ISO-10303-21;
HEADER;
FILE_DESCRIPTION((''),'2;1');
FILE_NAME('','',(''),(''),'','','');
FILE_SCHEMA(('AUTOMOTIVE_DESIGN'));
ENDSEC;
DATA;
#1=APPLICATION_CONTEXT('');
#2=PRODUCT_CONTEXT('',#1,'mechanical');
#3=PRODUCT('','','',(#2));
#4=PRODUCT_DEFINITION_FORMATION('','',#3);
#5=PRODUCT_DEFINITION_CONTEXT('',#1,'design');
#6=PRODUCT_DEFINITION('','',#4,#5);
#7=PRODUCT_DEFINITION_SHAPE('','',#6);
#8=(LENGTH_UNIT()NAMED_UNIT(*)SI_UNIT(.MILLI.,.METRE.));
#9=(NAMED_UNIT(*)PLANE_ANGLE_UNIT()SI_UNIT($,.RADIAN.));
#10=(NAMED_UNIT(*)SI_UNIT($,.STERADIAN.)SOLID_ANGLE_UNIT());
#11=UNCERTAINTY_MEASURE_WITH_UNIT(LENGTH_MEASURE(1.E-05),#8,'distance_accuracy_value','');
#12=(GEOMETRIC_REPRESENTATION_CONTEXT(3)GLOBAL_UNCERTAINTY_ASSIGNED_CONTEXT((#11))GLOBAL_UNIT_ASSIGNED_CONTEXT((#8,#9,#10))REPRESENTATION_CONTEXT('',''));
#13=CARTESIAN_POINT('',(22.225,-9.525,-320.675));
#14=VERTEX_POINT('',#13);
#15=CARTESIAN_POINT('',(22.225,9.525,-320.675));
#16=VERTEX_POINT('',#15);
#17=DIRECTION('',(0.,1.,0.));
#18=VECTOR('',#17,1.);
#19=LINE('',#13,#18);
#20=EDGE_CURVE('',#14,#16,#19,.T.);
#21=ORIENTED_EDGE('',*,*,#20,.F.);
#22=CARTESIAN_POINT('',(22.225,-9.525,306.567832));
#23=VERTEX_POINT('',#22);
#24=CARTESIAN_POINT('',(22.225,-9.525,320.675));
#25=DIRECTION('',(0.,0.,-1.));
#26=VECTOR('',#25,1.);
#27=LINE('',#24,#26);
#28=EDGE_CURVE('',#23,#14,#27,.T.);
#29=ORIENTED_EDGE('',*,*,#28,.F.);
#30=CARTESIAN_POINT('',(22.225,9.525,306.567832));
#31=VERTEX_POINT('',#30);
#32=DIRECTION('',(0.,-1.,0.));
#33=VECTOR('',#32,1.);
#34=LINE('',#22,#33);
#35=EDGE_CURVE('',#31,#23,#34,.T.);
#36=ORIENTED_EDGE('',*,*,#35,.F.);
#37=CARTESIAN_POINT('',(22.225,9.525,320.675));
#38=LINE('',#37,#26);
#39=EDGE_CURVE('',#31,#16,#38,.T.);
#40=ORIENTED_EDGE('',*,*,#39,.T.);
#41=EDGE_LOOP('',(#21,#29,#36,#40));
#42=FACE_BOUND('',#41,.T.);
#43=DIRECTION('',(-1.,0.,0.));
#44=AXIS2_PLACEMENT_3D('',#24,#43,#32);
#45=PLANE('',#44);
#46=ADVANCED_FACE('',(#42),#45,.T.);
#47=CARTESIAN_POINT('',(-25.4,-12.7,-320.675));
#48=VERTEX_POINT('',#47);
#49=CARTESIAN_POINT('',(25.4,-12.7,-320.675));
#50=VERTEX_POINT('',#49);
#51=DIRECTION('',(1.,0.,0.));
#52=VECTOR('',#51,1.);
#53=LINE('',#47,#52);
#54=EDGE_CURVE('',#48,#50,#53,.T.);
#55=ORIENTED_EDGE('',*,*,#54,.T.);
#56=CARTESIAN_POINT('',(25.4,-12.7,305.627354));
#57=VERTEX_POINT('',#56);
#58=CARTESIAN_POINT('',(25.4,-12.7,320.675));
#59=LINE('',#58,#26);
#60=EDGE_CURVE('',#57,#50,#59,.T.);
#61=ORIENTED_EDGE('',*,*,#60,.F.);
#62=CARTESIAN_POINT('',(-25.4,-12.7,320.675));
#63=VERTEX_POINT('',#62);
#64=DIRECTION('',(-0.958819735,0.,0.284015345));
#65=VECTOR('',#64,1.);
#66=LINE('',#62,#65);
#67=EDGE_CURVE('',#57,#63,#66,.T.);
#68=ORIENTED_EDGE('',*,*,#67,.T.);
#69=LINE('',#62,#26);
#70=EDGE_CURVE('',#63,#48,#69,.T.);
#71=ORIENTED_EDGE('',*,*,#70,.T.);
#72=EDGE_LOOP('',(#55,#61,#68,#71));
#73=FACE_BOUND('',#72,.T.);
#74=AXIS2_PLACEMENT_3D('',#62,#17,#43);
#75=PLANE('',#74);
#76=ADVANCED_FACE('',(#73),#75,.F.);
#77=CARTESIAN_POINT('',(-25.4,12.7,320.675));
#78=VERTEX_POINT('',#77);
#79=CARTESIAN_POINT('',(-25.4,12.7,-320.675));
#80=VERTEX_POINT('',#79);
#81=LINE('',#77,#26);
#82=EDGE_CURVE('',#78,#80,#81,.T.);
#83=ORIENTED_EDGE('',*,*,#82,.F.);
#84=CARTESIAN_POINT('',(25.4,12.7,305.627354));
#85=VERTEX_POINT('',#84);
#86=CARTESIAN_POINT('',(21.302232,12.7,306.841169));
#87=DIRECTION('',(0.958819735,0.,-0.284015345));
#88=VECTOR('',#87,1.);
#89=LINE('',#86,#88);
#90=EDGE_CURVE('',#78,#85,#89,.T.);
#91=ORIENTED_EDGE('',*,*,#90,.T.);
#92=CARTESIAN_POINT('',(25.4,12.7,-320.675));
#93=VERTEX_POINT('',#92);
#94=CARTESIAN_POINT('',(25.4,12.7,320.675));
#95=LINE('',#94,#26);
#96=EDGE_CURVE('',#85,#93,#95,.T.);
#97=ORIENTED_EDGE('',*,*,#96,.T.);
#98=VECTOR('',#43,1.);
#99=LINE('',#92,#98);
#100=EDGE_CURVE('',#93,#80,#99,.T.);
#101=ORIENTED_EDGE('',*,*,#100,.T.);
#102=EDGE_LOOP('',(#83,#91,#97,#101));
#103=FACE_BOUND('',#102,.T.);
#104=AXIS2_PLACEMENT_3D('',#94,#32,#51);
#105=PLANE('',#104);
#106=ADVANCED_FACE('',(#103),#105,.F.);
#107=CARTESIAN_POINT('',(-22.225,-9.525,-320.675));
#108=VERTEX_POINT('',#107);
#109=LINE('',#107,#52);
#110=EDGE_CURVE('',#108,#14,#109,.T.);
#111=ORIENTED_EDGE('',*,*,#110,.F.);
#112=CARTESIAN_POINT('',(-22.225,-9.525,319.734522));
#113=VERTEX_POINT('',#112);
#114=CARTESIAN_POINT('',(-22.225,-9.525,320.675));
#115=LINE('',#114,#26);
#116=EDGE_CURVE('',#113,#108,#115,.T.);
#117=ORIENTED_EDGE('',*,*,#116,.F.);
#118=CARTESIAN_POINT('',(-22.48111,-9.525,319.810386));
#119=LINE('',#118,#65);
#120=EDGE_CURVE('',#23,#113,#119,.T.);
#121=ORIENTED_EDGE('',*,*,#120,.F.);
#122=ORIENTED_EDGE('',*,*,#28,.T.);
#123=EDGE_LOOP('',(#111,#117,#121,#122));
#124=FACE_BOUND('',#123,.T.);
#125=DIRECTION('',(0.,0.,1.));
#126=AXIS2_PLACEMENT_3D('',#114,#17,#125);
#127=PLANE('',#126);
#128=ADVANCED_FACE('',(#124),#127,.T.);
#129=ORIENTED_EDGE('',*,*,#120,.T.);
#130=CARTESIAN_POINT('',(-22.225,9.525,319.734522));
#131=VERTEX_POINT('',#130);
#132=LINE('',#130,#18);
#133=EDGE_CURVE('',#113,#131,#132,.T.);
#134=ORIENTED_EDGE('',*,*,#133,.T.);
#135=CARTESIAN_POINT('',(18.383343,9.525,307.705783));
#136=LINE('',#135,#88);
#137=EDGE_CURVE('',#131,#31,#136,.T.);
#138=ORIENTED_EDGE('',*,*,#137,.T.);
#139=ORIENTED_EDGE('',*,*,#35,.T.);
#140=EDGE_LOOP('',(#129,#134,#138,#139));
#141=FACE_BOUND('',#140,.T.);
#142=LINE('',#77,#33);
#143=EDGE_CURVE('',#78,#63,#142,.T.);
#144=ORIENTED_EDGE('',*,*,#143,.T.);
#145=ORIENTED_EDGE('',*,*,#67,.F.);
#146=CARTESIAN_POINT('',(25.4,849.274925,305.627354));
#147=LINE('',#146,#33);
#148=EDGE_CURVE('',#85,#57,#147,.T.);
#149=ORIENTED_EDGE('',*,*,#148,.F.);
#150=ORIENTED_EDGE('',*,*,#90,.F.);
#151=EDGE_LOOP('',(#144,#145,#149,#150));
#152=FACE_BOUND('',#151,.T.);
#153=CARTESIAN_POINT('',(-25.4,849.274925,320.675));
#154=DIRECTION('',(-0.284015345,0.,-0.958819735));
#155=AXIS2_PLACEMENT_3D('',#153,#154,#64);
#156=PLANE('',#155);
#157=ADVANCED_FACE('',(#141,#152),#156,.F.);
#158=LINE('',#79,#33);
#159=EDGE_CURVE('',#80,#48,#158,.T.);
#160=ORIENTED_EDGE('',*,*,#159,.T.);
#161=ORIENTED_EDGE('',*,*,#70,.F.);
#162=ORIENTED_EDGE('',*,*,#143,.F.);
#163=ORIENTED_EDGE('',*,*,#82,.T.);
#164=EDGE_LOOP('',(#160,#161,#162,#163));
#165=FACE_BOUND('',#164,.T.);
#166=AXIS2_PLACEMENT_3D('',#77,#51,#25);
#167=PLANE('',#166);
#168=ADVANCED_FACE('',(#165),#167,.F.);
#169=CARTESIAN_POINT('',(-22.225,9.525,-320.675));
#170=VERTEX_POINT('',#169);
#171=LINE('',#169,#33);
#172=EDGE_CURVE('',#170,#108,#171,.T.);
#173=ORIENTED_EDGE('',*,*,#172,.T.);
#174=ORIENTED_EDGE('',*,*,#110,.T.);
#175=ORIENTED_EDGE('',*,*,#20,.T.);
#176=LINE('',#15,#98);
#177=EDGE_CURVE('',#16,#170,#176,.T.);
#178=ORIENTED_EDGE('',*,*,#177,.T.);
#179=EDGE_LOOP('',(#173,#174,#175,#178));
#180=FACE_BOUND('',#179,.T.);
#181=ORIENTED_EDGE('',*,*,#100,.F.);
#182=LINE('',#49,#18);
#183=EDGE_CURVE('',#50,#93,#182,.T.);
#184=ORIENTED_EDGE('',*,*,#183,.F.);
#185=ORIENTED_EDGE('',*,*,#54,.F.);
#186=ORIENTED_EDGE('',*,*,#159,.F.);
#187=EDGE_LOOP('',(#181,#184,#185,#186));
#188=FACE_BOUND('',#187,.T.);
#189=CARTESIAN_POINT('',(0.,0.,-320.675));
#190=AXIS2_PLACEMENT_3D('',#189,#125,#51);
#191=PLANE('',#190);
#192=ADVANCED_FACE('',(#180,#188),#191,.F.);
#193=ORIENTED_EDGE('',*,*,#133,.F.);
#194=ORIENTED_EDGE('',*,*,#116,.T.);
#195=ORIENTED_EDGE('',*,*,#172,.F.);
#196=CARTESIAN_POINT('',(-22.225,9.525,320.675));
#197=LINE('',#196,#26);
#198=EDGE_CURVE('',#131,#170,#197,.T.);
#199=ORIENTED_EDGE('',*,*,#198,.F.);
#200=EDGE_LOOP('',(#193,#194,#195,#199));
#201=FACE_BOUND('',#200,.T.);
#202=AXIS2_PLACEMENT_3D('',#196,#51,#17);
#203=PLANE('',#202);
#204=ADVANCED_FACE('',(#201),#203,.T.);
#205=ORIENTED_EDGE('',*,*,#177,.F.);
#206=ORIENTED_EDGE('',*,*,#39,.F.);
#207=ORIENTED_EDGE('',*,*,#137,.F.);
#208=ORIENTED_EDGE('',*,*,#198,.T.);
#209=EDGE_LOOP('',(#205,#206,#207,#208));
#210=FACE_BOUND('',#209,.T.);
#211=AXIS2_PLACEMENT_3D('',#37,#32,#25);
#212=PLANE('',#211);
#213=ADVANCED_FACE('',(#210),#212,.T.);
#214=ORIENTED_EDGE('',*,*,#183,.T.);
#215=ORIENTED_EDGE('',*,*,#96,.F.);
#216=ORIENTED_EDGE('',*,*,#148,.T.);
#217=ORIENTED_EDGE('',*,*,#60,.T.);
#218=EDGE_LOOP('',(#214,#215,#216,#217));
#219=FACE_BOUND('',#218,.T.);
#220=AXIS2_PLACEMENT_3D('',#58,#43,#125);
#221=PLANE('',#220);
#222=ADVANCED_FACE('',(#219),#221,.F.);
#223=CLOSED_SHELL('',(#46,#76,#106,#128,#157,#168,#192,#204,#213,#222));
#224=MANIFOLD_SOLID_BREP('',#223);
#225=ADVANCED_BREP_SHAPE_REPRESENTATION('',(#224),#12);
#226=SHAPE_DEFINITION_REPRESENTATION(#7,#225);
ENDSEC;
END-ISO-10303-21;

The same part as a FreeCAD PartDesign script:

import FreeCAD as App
import Part
import Sketcher
from FreeCAD import Vector
Q = App.Units.Quantity

doc = App.newDocument("Part")
params = doc.addObject("Spreadsheet::Sheet", "Params")
for row, (alias, value) in enumerate([
    ("sketch1_width", "2 in"),
    ("sketch1_height", "1 in"),
    ("sketch1_width2", "1.75 in"),
    ("sketch1_height2", "0.75 in"),
    ("pad1_length", "12.625 in"),
    ("pad1_length2", "12.625 in"),
], start=1):
    params.set(f"A{row}", alias)
    params.set(f"B{row}", "=" + value)
    params.setAlias(f"B{row}", alias)

body = doc.addObject("PartDesign::Body", "Body")

# Sketch on XY plane
sketch1 = doc.addObject("Sketcher::SketchObject", "Sketch")
body.addObject(sketch1)
sketch1.AttachmentSupport = (doc.XY_Plane, [""])
sketch1.MapMode = "FlatFace"
sketch1.addGeometry([
    Part.LineSegment(Vector(-25, 13, 0), Vector(-25, -13, 0)),  # 0
    Part.LineSegment(Vector(-25, -13, 0), Vector(25, -13, 0)),  # 1
    Part.LineSegment(Vector(25, -13, 0), Vector(25, 13, 0)),  # 2
    Part.LineSegment(Vector(25, 13, 0), Vector(-25, 13, 0)),  # 3
    Part.LineSegment(Vector(22, -10, 0), Vector(-22, -10, 0)),  # 4
    Part.LineSegment(Vector(-22, -10, 0), Vector(-22, 10, 0)),  # 5
    Part.LineSegment(Vector(-22, 10, 0), Vector(22, 10, 0)),  # 6
    Part.LineSegment(Vector(22, 10, 0), Vector(22, -10, 0)),  # 7
], False)
sketch1.addConstraint([
    Sketcher.Constraint("Coincident", 0, 2, 1, 1),
    Sketcher.Constraint("Coincident", 1, 2, 2, 1),
    Sketcher.Constraint("Coincident", 2, 2, 3, 1),
    Sketcher.Constraint("Coincident", 3, 2, 0, 1),
    Sketcher.Constraint("Coincident", 4, 2, 5, 1),
    Sketcher.Constraint("Coincident", 5, 2, 6, 1),
    Sketcher.Constraint("Coincident", 6, 2, 7, 1),
    Sketcher.Constraint("Coincident", 7, 2, 4, 1),
    Sketcher.Constraint("Vertical", 0),
    Sketcher.Constraint("Horizontal", 1),
    Sketcher.Constraint("Vertical", 2),
    Sketcher.Constraint("Horizontal", 3),
    Sketcher.Constraint("Horizontal", 4),
    Sketcher.Constraint("Vertical", 5),
    Sketcher.Constraint("Horizontal", 6),
    Sketcher.Constraint("Vertical", 7),
    Sketcher.Constraint("Symmetric", 0, 2, 2, 2, -1, 1),
    Sketcher.Constraint("Symmetric", 4, 2, 6, 2, -1, 1),
    Sketcher.Constraint("DistanceX", 1, 1, 1, 2, Q("2 in")),
    Sketcher.Constraint("DistanceY", 0, 2, 0, 1, Q("1 in")),
    Sketcher.Constraint("DistanceX", 4, 2, 4, 1, Q("1.75 in")),
    Sketcher.Constraint("DistanceY", 5, 1, 5, 2, Q("0.75 in")),
])
sketch1.setExpression("Constraints[18]", "Params.sketch1_width")
sketch1.setExpression("Constraints[19]", "Params.sketch1_height")
sketch1.setExpression("Constraints[20]", "Params.sketch1_width2")
sketch1.setExpression("Constraints[21]", "Params.sketch1_height2")
pad1 = doc.addObject("PartDesign::Pad", "Pad")
body.addObject(pad1)
pad1.Profile = sketch1
pad1.Type = "TwoLengths"
pad1.setExpression("Length", "Params.pad1_length")
pad1.setExpression("Length2", "Params.pad1_length2")

# Sketch on XZ plane
sketch2 = doc.addObject("Sketcher::SketchObject", "Sketch001")
body.addObject(sketch2)
sketch2.AttachmentSupport = (doc.XZ_Plane, [""])
sketch2.MapMode = "FlatFace"
sketch2.AttachmentOffset = App.Placement(Vector(0, 0, -0.5 * 25.4), App.Rotation())
sketch2.addGeometry([
    Part.LineSegment(Vector(-25, 321, 0), Vector(1322, 321, 0)),  # 0
    Part.LineSegment(Vector(1322, 321, 0), Vector(3891, -37, 0)),  # 1
    Part.LineSegment(Vector(3891, -37, 0), Vector(3837, -420, 0)),  # 2
    Part.LineSegment(Vector(3837, -420, 0), Vector(1269, -63, 0)),  # 3
    Part.LineSegment(Vector(1269, -63, 0), Vector(25, 306, 0)),  # 4
    Part.LineSegment(Vector(25, 306, 0), Vector(-25, 321, 0)),  # 5
], False)
sketch2.addConstraint([
    Sketcher.Constraint("Coincident", 0, 2, 1, 1),
    Sketcher.Constraint("Coincident", 1, 2, 2, 1),
    Sketcher.Constraint("Coincident", 2, 2, 3, 1),
    Sketcher.Constraint("Coincident", 3, 2, 4, 1),
    Sketcher.Constraint("Coincident", 4, 2, 5, 1),
    Sketcher.Constraint("Coincident", 5, 2, 0, 1),
    Sketcher.Constraint("Horizontal", 0),
    Sketcher.Constraint("Perpendicular", 1, 2),
    Sketcher.Constraint("Perpendicular", 2, 3),
    Sketcher.Constraint("Parallel", 4, 5),
    Sketcher.Constraint("Equal", 1, 3),
    Sketcher.Constraint("DistanceX", -1, 1, 4, 2, Q("1 in")),
    Sketcher.Constraint("DistanceX", 5, 2, -1, 1, Q("1 in")),
    Sketcher.Constraint("Angle", 4, Q("163.5 deg")),
    Sketcher.Constraint("DistanceY", -1, 1, 0, 2, Q("12.625 in")),
    Sketcher.Constraint("DistanceX", 0, 1, 0, 2, 1347.517471),
    Sketcher.Constraint("DistanceX", -1, 1, 3, 2, 1268.718302),
    Sketcher.Constraint("Distance", 1, 2593.434942),
])
pocket1 = doc.addObject("PartDesign::Pocket", "Pocket")
body.addObject(pocket1)
pocket1.Profile = sketch2
pocket1.Type = "ThroughAll"
pocket1.Midplane = True

doc.recompute()
